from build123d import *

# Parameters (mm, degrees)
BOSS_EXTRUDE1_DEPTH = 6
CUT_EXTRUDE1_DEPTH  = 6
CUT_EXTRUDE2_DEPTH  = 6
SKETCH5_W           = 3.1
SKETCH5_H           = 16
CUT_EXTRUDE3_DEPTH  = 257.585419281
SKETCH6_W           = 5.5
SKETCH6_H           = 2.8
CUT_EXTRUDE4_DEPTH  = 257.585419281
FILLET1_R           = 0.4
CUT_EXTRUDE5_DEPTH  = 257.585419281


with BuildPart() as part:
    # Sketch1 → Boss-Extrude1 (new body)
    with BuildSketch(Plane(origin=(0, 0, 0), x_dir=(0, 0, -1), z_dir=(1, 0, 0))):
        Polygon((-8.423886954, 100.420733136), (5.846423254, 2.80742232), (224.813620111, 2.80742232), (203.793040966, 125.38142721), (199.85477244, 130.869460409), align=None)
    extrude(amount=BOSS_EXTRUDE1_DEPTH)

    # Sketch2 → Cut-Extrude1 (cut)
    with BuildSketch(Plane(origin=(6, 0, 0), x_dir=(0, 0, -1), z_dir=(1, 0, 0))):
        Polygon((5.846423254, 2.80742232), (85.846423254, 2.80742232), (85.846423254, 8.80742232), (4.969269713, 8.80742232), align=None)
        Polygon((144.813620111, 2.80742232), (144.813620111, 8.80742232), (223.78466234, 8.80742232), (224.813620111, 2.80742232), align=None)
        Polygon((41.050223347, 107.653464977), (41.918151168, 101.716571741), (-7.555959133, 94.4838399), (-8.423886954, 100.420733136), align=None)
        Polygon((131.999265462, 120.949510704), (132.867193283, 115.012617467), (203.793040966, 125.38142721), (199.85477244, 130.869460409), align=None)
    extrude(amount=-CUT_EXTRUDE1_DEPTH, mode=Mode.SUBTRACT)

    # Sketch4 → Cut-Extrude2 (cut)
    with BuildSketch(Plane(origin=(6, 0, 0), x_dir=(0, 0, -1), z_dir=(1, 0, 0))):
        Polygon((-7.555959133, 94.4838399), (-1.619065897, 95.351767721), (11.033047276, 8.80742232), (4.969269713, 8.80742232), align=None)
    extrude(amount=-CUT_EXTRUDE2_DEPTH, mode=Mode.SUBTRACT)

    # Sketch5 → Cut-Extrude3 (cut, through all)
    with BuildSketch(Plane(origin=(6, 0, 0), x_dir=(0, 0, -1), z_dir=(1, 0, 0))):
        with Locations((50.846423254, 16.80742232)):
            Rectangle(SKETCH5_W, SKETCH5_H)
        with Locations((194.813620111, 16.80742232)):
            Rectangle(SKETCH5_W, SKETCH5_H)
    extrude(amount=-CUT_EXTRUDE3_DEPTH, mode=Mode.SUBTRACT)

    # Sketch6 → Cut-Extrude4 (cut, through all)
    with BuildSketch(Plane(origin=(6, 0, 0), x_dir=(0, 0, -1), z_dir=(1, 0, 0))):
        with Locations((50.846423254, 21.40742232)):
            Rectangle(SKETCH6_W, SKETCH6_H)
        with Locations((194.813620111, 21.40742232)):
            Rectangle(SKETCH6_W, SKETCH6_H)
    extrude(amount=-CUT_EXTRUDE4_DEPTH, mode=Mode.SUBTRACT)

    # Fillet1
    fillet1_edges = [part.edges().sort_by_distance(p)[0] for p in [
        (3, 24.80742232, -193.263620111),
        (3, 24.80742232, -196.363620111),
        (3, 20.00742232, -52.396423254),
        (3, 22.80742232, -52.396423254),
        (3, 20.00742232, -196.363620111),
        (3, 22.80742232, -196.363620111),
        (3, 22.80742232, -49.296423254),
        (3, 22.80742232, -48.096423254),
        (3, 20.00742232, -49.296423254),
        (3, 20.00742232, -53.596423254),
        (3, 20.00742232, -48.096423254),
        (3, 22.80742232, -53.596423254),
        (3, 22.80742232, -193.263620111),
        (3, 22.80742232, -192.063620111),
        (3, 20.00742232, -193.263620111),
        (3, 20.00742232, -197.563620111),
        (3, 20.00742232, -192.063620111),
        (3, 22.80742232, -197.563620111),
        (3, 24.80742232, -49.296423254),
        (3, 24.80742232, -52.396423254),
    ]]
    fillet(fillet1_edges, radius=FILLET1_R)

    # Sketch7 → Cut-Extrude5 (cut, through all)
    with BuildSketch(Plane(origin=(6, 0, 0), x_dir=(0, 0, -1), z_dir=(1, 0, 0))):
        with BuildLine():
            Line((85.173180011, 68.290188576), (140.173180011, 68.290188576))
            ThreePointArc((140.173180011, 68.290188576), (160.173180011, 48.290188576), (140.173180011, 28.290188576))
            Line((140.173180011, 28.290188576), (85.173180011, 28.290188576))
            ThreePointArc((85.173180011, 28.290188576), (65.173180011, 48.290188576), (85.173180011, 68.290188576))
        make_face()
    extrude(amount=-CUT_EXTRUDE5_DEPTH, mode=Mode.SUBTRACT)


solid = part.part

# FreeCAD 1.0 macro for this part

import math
import FreeCAD as App
import Part
import Sketcher
Q = App.Units.Quantity


def edges_at(feature, points):
    """Names of the edges that pass closest to the given points."""
    edges = feature.Shape.Edges
    near = lambda p: min(range(len(edges)), key=lambda i: edges[i].distToShape(Part.Vertex(*p))[0])
    return sorted({f"Edge{near(p) + 1}" for p in points})

doc = App.newDocument("Part")
body = doc.addObject("PartDesign::Body", "Body")

# Sketch on YZ plane
sketch1 = doc.addObject("Sketcher::SketchObject", "Sketch")
body.addObject(sketch1)
sketch1.AttachmentSupport = (doc.YZ_Plane, [""])
sketch1.MapMode = "FlatFace"
sketch1.addGeometry([
    Part.LineSegment(App.Vector(100, 8, 0), App.Vector(3, -6, 0)),  # 0
    Part.LineSegment(App.Vector(3, -6, 0), App.Vector(3, -225, 0)),  # 1
    Part.LineSegment(App.Vector(3, -225, 0), App.Vector(125, -204, 0)),  # 2
    Part.LineSegment(App.Vector(125, -204, 0), App.Vector(131, -200, 0)),  # 3
    Part.LineSegment(App.Vector(131, -200, 0), App.Vector(100, 8, 0)),  # 4
], False)
sketch1.addConstraint([
    Sketcher.Constraint("Coincident", 0, 2, 1, 1),
    Sketcher.Constraint("Coincident", 1, 2, 2, 1),
    Sketcher.Constraint("Coincident", 2, 2, 3, 1),
    Sketcher.Constraint("Coincident", 3, 2, 4, 1),
    Sketcher.Constraint("Coincident", 4, 2, 0, 1),
    Sketcher.Constraint("Vertical", 1),
    Sketcher.Constraint("Perpendicular", 0, 4),
    Sketcher.Constraint("Distance", 0, Q("98.650901 mm")),
    Sketcher.Constraint("DistanceY", 1, 2, 1, 1, Q("218.967197 mm")),
    Sketcher.Constraint("DistanceY", 1, 2, -1, 1, Q("224.81362 mm")),
    Sketcher.Constraint("DistanceY", 2, 2, -1, 1, Q("203.793041 mm")),
    Sketcher.Constraint("DistanceX", -1, 1, 3, 2, Q("130.86946 mm")),
    Sketcher.Constraint("DistanceY", 2, 2, 3, 2, Q("3.938269 mm")),
    Sketcher.Constraint("DistanceX", 1, 2, 3, 2, Q("128.062038 mm")),
    Sketcher.Constraint("Distance", 2, Q("124.363385 mm")),
])
pad1 = doc.addObject("PartDesign::Pad", "Pad")
body.addObject(pad1)
pad1.Profile = sketch1
pad1.Length = 6

# Sketch on YZ plane
sketch2 = doc.addObject("Sketcher::SketchObject", "Sketch001")
body.addObject(sketch2)
sketch2.AttachmentSupport = (doc.YZ_Plane, [""])
sketch2.MapMode = "FlatFace"
sketch2.AttachmentOffset = App.Placement(App.Vector(0, 0, 6), App.Rotation())
sketch2.addGeometry([
    Part.LineSegment(App.Vector(2.807422, -5.846423, 0), App.Vector(2.807422, -85.846423, 0)),  # 0
    Part.LineSegment(App.Vector(2.807422, -85.846423, 0), App.Vector(8.807422, -85.846423, 0)),  # 1
    Part.LineSegment(App.Vector(8.807422, -85.846423, 0), App.Vector(8.807422, -4.96927, 0)),  # 2
    Part.LineSegment(App.Vector(8.807422, -4.96927, 0), App.Vector(2.807422, -5.846423, 0)),  # 3
    Part.LineSegment(App.Vector(8.807422, -144.81362, 0), App.Vector(2.807422, -144.81362, 0)),  # 4
    Part.LineSegment(App.Vector(2.807422, -144.81362, 0), App.Vector(2.807422, -224.81362, 0)),  # 5
    Part.LineSegment(App.Vector(2.807422, -224.81362, 0), App.Vector(8.807422, -223.784662, 0)),  # 6
    Part.LineSegment(App.Vector(8.807422, -223.784662, 0), App.Vector(8.807422, -144.81362, 0)),  # 7
    Part.LineSegment(App.Vector(101.716572, -41.918151, 0), App.Vector(107.653465, -41.050223, 0)),  # 8
    Part.LineSegment(App.Vector(107.653465, -41.050223, 0), App.Vector(100.420733, 8.423887, 0)),  # 9
    Part.LineSegment(App.Vector(100.420733, 8.423887, 0), App.Vector(94.48384, 7.555959, 0)),  # 10
    Part.LineSegment(App.Vector(94.48384, 7.555959, 0), App.Vector(101.716572, -41.918151, 0)),  # 11
    Part.LineSegment(App.Vector(120.949511, -131.999265, 0), App.Vector(115.012617, -132.867193, 0)),  # 12
    Part.LineSegment(App.Vector(115.012617, -132.867193, 0), App.Vector(125.381427, -203.793041, 0)),  # 13
    Part.LineSegment(App.Vector(125.381427, -203.793041, 0), App.Vector(130.86946, -199.854772, 0)),  # 14
    Part.LineSegment(App.Vector(130.86946, -199.854772, 0), App.Vector(120.949511, -131.999265, 0)),  # 15
], False)
sketch2.addConstraint([
    Sketcher.Constraint("Coincident", 0, 2, 1, 1),
    Sketcher.Constraint("Coincident", 1, 2, 2, 1),
    Sketcher.Constraint("Coincident", 2, 2, 3, 1),
    Sketcher.Constraint("Coincident", 3, 2, 0, 1),
    Sketcher.Constraint("Coincident", 4, 2, 5, 1),
    Sketcher.Constraint("Coincident", 5, 2, 6, 1),
    Sketcher.Constraint("Coincident", 6, 2, 7, 1),
    Sketcher.Constraint("Coincident", 7, 2, 4, 1),
    Sketcher.Constraint("Coincident", 8, 2, 9, 1),
    Sketcher.Constraint("Coincident", 9, 2, 10, 1),
    Sketcher.Constraint("Coincident", 10, 2, 11, 1),
    Sketcher.Constraint("Coincident", 11, 2, 8, 1),
    Sketcher.Constraint("Coincident", 12, 2, 13, 1),
    Sketcher.Constraint("Coincident", 13, 2, 14, 1),
    Sketcher.Constraint("Coincident", 14, 2, 15, 1),
    Sketcher.Constraint("Coincident", 15, 2, 12, 1),
    Sketcher.Constraint("Vertical", 0),
    Sketcher.Constraint("Horizontal", 1),
    Sketcher.Constraint("Vertical", 2),
    Sketcher.Constraint("Horizontal", 4),
    Sketcher.Constraint("Vertical", 5),
    Sketcher.Constraint("Vertical", 7),
    Sketcher.Constraint("Parallel", 3, 8),
    Sketcher.Constraint("Perpendicular", 8, 9),
    Sketcher.Constraint("Perpendicular", 9, 10),
    Sketcher.Constraint("Perpendicular", 10, 11),
    Sketcher.Constraint("Perpendicular", 11, 12),
    Sketcher.Constraint("Perpendicular", 12, 13),
    Sketcher.Constraint("Parallel", 13, 15),
    Sketcher.Constraint("Vertical", 3, 2, 4, 2),
    Sketcher.Constraint("Vertical", 2, 2, 6, 2),
    Sketcher.Constraint("Equal", 0, 5),
    Sketcher.Constraint("Equal", 10, 12),
    Sketcher.Constraint("DistanceX", 1, 1, 1, 2, Q("6 mm")),
    Sketcher.Constraint("DistanceY", 0, 2, 0, 1, Q("80 mm")),
    Sketcher.Constraint("Distance", 8, Q("6 mm")),
    Sketcher.Constraint("Distance", 9, Q("50 mm")),
    Sketcher.Constraint("DistanceY", 1, 2, 8, 2, Q("44.7962 mm")),
    Sketcher.Constraint("Distance", 6, Q("6.08759 mm")),
    Sketcher.Constraint("Distance", 13, Q("71.679761 mm")),
    Sketcher.Constraint("DistanceY", 2, 1, 2, 2, Q("80.877154 mm")),
    Sketcher.Constraint("DistanceY", 2, 2, -1, 1, Q("4.96927 mm")),
    Sketcher.Constraint("DistanceY", 4, 2, -1, 1, Q("144.81362 mm")),
    Sketcher.Constraint("DistanceX", -1, 1, 10, 2, Q("94.48384 mm")),
    Sketcher.Constraint("DistanceY", 13, 2, -1, 1, Q("203.793041 mm")),
    Sketcher.Constraint("DistanceX", -1, 1, 14, 2, Q("130.86946 mm")),
    Sketcher.Constraint("DistanceX", -1, 1, 15, 2, Q("120.949511 mm")),
    Sketcher.Constraint("DistanceX", 2, 2, 9, 2, Q("91.613311 mm")),
])
pocket1 = doc.addObject("PartDesign::Pocket", "Pocket")
body.addObject(pocket1)
pocket1.Profile = sketch2
pocket1.Length = 6

# Sketch on YZ plane
sketch3 = doc.addObject("Sketcher::SketchObject", "Sketch002")
body.addObject(sketch3)
sketch3.AttachmentSupport = (doc.YZ_Plane, [""])
sketch3.MapMode = "FlatFace"
sketch3.AttachmentOffset = App.Placement(App.Vector(0, 0, 6), App.Rotation())
sketch3.addGeometry([
    Part.LineSegment(App.Vector(95.351768, 1.619066, 0), App.Vector(94.48384, 7.555959, 0)),
    Part.LineSegment(App.Vector(94.48384, 7.555959, 0), App.Vector(8.807422, -4.96927, 0)),
    Part.LineSegment(App.Vector(8.807422, -4.96927, 0), App.Vector(8.807422, -11.033047, 0)),
    Part.LineSegment(App.Vector(8.807422, -11.033047, 0), App.Vector(95.351768, 1.619066, 0)),
], False)
sketch3.addConstraint([
    Sketcher.Constraint("Coincident", 0, 2, 1, 1),
    Sketcher.Constraint("Coincident", 1, 2, 2, 1),
    Sketcher.Constraint("Coincident", 2, 2, 3, 1),
    Sketcher.Constraint("Coincident", 3, 2, 0, 1),
    Sketcher.Constraint("Vertical", 2),
    Sketcher.Constraint("Distance", 0, Q("6 mm")),
    Sketcher.Constraint("DistanceY", 2, 2, 2, 1, Q("6.063778 mm")),
    Sketcher.Constraint("DistanceX", -1, 1, 0, 2, Q("94.48384 mm")),
    Sketcher.Constraint("DistanceY", -1, 1, 0, 2, Q("7.555959 mm")),
    Sketcher.Constraint("DistanceY", 1, 2, -1, 1, Q("4.96927 mm")),
    Sketcher.Constraint("Distance", 1, Q("86.587123 mm")),
    Sketcher.Constraint("Distance", 3, Q("87.464277 mm")),
])
pocket2 = doc.addObject("PartDesign::Pocket", "Pocket001")
body.addObject(pocket2)
pocket2.Profile = sketch3
pocket2.Length = 6

# Sketch on YZ plane
sketch4 = doc.addObject("Sketcher::SketchObject", "Sketch003")
body.addObject(sketch4)
sketch4.AttachmentSupport = (doc.YZ_Plane, [""])
sketch4.MapMode = "FlatFace"
sketch4.AttachmentOffset = App.Placement(App.Vector(0, 0, 6), App.Rotation())
sketch4.addGeometry([
    Part.LineSegment(App.Vector(24.8, -49.3, 0), App.Vector(8.8, -49.3, 0)),  # 0
    Part.LineSegment(App.Vector(8.8, -49.3, 0), App.Vector(8.8, -52.4, 0)),  # 1
    Part.LineSegment(App.Vector(8.8, -52.4, 0), App.Vector(24.8, -52.4, 0)),  # 2
    Part.LineSegment(App.Vector(24.8, -52.4, 0), App.Vector(24.8, -49.3, 0)),  # 3
    Part.LineSegment(App.Vector(24.8, -193.3, 0), App.Vector(8.8, -193.3, 0)),  # 4
    Part.LineSegment(App.Vector(8.8, -193.3, 0), App.Vector(8.8, -196.4, 0)),  # 5
    Part.LineSegment(App.Vector(8.8, -196.4, 0), App.Vector(24.8, -196.4, 0)),  # 6
    Part.LineSegment(App.Vector(24.8, -196.4, 0), App.Vector(24.8, -193.3, 0)),  # 7
], False)
sketch4.addConstraint([
    Sketcher.Constraint("Coincident", 0, 2, 1, 1),
    Sketcher.Constraint("Coincident", 1, 2, 2, 1),
    Sketcher.Constraint("Coincident", 2, 2, 3, 1),
    Sketcher.Constraint("Coincident", 3, 2, 0, 1),
    Sketcher.Constraint("Coincident", 4, 2, 5, 1),
    Sketcher.Constraint("Coincident", 5, 2, 6, 1),
    Sketcher.Constraint("Coincident", 6, 2, 7, 1),
    Sketcher.Constraint("Coincident", 7, 2, 4, 1),
    Sketcher.Constraint("Horizontal", 0),
    Sketcher.Constraint("Vertical", 1),
    Sketcher.Constraint("Horizontal", 2),
    Sketcher.Constraint("Vertical", 3),
    Sketcher.Constraint("Horizontal", 4),
    Sketcher.Constraint("Vertical", 5),
    Sketcher.Constraint("Horizontal", 6),
    Sketcher.Constraint("Vertical", 7),
    Sketcher.Constraint("Vertical", 1, 2, 4, 2),
    Sketcher.Constraint("Vertical", 3, 2, 6, 2),
    Sketcher.Constraint("Equal", 3, 5),
    Sketcher.Constraint("DistanceX", 0, 2, 0, 1, Q("16 mm")),
    Sketcher.Constraint("DistanceY", 1, 2, 1, 1, Q("3.1 mm")),
    Sketcher.Constraint("DistanceY", 4, 2, -1, 1, Q("193.26362 mm")),
    Sketcher.Constraint("DistanceX", -1, 1, 0, 2, Q("8.807422 mm")),
    Sketcher.Constraint("DistanceY", 0, 2, -1, 1, Q("49.296423 mm")),
])
pocket3 = doc.addObject("PartDesign::Pocket", "Pocket002")
body.addObject(pocket3)
pocket3.Profile = sketch4
pocket3.Type = "ThroughAll"

# Sketch on YZ plane
sketch5 = doc.addObject("Sketcher::SketchObject", "Sketch004")
body.addObject(sketch5)
sketch5.AttachmentSupport = (doc.YZ_Plane, [""])
sketch5.MapMode = "FlatFace"
sketch5.AttachmentOffset = App.Placement(App.Vector(0, 0, 6), App.Rotation())
sketch5.addGeometry([
    Part.LineSegment(App.Vector(22.8, -48.1, 0), App.Vector(20, -48.1, 0)),  # 0
    Part.LineSegment(App.Vector(20, -48.1, 0), App.Vector(20, -53.6, 0)),  # 1
    Part.LineSegment(App.Vector(20, -53.6, 0), App.Vector(22.8, -53.6, 0)),  # 2
    Part.LineSegment(App.Vector(22.8, -53.6, 0), App.Vector(22.8, -48.1, 0)),  # 3
    Part.LineSegment(App.Vector(22.8, -192.1, 0), App.Vector(20, -192.1, 0)),  # 4
    Part.LineSegment(App.Vector(20, -192.1, 0), App.Vector(20, -197.6, 0)),  # 5
    Part.LineSegment(App.Vector(20, -197.6, 0), App.Vector(22.8, -197.6, 0)),  # 6
    Part.LineSegment(App.Vector(22.8, -197.6, 0), App.Vector(22.8, -192.1, 0)),  # 7
], False)
sketch5.addConstraint([
    Sketcher.Constraint("Coincident", 0, 2, 1, 1),
    Sketcher.Constraint("Coincident", 1, 2, 2, 1),
    Sketcher.Constraint("Coincident", 2, 2, 3, 1),
    Sketcher.Constraint("Coincident", 3, 2, 0, 1),
    Sketcher.Constraint("Coincident", 4, 2, 5, 1),
    Sketcher.Constraint("Coincident", 5, 2, 6, 1),
    Sketcher.Constraint("Coincident", 6, 2, 7, 1),
    Sketcher.Constraint("Coincident", 7, 2, 4, 1),
    Sketcher.Constraint("Horizontal", 0),
    Sketcher.Constraint("Vertical", 1),
    Sketcher.Constraint("Horizontal", 2),
    Sketcher.Constraint("Vertical", 3),
    Sketcher.Constraint("Horizontal", 4),
    Sketcher.Constraint("Vertical", 5),
    Sketcher.Constraint("Horizontal", 6),
    Sketcher.Constraint("Vertical", 7),
    Sketcher.Constraint("Vertical", 1, 2, 4, 2),
    Sketcher.Constraint("Vertical", 3, 2, 6, 2),
    Sketcher.Constraint("Equal", 3, 5),
    Sketcher.Constraint("DistanceX", 0, 2, 0, 1, Q("2.8 mm")),
    Sketcher.Constraint("DistanceY", 1, 2, 1, 1, Q("5.5 mm")),
    Sketcher.Constraint("DistanceY", 4, 2, -1, 1, Q("192.06362 mm")),
    Sketcher.Constraint("DistanceX", -1, 1, 0, 2, Q("20.007422 mm")),
    Sketcher.Constraint("DistanceY", 0, 2, -1, 1, Q("48.096423 mm")),
])
pocket4 = doc.addObject("PartDesign::Pocket", "Pocket003")
body.addObject(pocket4)
pocket4.Profile = sketch5
pocket4.Type = "ThroughAll"
doc.recompute()

fillet = doc.addObject("PartDesign::Fillet", "Fillet")
body.addObject(fillet)
fillet.Base = (pocket4, edges_at(pocket4, [
    (3, 24.807, -193.264),
    (3, 24.807, -196.364),
    (3, 20.007, -52.396),
    (3, 22.807, -52.396),
    (3, 20.007, -196.364),
    (3, 22.807, -196.364),
    (3, 22.807, -49.296),
    (3, 22.807, -48.096),
    (3, 20.007, -49.296),
    (3, 20.007, -53.596),
    (3, 20.007, -48.096),
    (3, 22.807, -53.596),
    (3, 22.807, -193.264),
    (3, 22.807, -192.064),
    (3, 20.007, -193.264),
    (3, 20.007, -197.564),
    (3, 20.007, -192.064),
    (3, 22.807, -197.564),
    (3, 24.807, -49.296),
    (3, 24.807, -52.396),
]))
fillet.Radius = 0.4

# Sketch on YZ plane
sketch6 = doc.addObject("Sketcher::SketchObject", "Sketch005")
body.addObject(sketch6)
sketch6.AttachmentSupport = (doc.YZ_Plane, [""])
sketch6.MapMode = "FlatFace"
sketch6.AttachmentOffset = App.Placement(App.Vector(0, 0, 6), App.Rotation())
sketch6.addGeometry([
    Part.LineSegment(App.Vector(68, -140, 0), App.Vector(68, -85, 0)),
    Part.ArcOfCircle(Part.Circle(App.Vector(48, -85, 0), App.Vector(0, 0, 1), 20), math.radians(0), math.radians(180)),
    Part.LineSegment(App.Vector(28, -85, 0), App.Vector(28, -140, 0)),
    Part.ArcOfCircle(Part.Circle(App.Vector(48, -140, 0), App.Vector(0, 0, 1), 20), math.radians(180), math.radians(360)),
], False)
sketch6.addConstraint([
    Sketcher.Constraint("Tangent", 0, 2, 1, 1),
    Sketcher.Constraint("Tangent", 1, 2, 2, 1),
    Sketcher.Constraint("Tangent", 2, 2, 3, 1),
    Sketcher.Constraint("Tangent", 3, 2, 0, 1),
    Sketcher.Constraint("Vertical", 0),
    Sketcher.Constraint("Vertical", 2),
    Sketcher.Constraint("Radius", 1, Q("20 mm")),
    Sketcher.Constraint("DistanceY", 0, 1, 0, 2, Q("55 mm")),
    Sketcher.Constraint("DistanceX", -1, 1, 1, 3, Q("48.290189 mm")),
    Sketcher.Constraint("DistanceY", 1, 3, -1, 1, Q("85.17318 mm")),
])
pocket5 = doc.addObject("PartDesign::Pocket", "Pocket004")
body.addObject(pocket5)
pocket5.Profile = sketch6
pocket5.Type = "ThroughAll"

doc.recompute()
